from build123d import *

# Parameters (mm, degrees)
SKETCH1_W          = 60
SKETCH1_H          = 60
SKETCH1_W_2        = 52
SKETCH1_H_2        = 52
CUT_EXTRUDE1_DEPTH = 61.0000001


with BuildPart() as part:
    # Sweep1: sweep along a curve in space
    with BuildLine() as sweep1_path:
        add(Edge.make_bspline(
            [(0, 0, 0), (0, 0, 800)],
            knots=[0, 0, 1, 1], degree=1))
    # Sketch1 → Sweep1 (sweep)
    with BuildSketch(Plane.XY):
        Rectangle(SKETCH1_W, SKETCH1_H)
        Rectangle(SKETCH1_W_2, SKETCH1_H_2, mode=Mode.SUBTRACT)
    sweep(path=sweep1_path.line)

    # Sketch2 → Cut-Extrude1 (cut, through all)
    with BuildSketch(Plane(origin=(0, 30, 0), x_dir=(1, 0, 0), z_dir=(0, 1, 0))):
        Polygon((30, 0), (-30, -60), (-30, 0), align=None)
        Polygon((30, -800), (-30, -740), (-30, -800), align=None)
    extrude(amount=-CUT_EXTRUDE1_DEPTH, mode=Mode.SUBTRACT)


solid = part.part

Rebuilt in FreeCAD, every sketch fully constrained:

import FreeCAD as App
import Part
import Sketcher

V = App.Vector
Q = App.Units.Quantity


def add_polygon(sketch, points):
    """Adds a closed chain of lines whose ends are joined by coincident constraints."""
    first, n = sketch.GeometryCount, len(points)
    for a, b in zip(points, points[1:] + points[:1]):
        sketch.addGeometry(Part.LineSegment(App.Vector(*a, 0), App.Vector(*b, 0)), False)
    for i in range(n):
        sketch.addConstraint(Sketcher.Constraint("Coincident", first + i, 2, first + (i + 1) % n, 1))

doc = App.newDocument("Part")
body = doc.addObject("PartDesign::Body", "Body")

sketch1 = body.newObject("Sketcher::SketchObject", "Sketch")
sketch1.AttachmentSupport = (doc.getObject("XY_Plane"), [""])
sketch1.MapMode = "FlatFace"
add_polygon(sketch1, [(-30, 30), (-30, -30), (30, -30), (30, 30)])
add_polygon(sketch1, [(26, -26), (-26, -26), (-26, 26), (26, 26)])
sketch1.addConstraint([
    Sketcher.Constraint("Vertical", 0),
    Sketcher.Constraint("Horizontal", 1),
    Sketcher.Constraint("Vertical", 2),
    Sketcher.Constraint("Horizontal", 3),
    Sketcher.Constraint("Horizontal", 4),
    Sketcher.Constraint("Vertical", 5),
    Sketcher.Constraint("Horizontal", 6),
    Sketcher.Constraint("Vertical", 7),
    Sketcher.Constraint("Symmetric", 0, 2, 2, 2, -1, 1),
    Sketcher.Constraint("Symmetric", 4, 2, 6, 2, -1, 1),
    Sketcher.Constraint("Equal", 3, 0),
    Sketcher.Constraint("Equal", 6, 5),
    Sketcher.Constraint("DistanceX", 1, 1, 1, 2, Q("60 mm")),
    Sketcher.Constraint("DistanceX", 4, 2, 4, 1, Q("52 mm")),
])

sketch2 = body.newObject("Sketcher::SketchObject", "Sketch001")
sketch2.AttachmentSupport = (doc.getObject("XZ_Plane"), [""])
sketch2.MapMode = "FlatFace"
sketch2.addGeometry(Part.BSplineCurve([V(0, 0, 0), V(0, 800, 0)], [2, 2], [0, 1], False, 1, [1, 1], False), False)
sketch2.addConstraint(Sketcher.Constraint("Block", 0))
doc.recompute()

additivepipe = body.newObject("PartDesign::AdditivePipe", "AdditivePipe")
additivepipe.Profile = sketch1
additivepipe.Spine = (sketch2, ["Edge1"])

sketch3 = body.newObject("Sketcher::SketchObject", "Sketch002")
sketch3.AttachmentSupport = (doc.getObject("XZ_Plane"), [""])
sketch3.MapMode = "FlatFace"
sketch3.AttachmentOffset = App.Placement(V(0, 0, -30), App.Rotation())
add_polygon(sketch3, [(-30, 60), (30, 0), (-30, 0)])
add_polygon(sketch3, [(30, 800), (-30, 740), (-30, 800)])
sketch3.addConstraint([
    Sketcher.Constraint("Horizontal", 1),
    Sketcher.Constraint("Vertical", 2),
    Sketcher.Constraint("Vertical", 4),
    Sketcher.Constraint("Horizontal", 5),
    Sketcher.Constraint("Symmetric", 0, 2, 1, 2, -1, 1),
    Sketcher.Constraint("Perpendicular", 0, 3),
    Sketcher.Constraint("Vertical", 2, 2, 3, 2),
    Sketcher.Constraint("Vertical", 0, 2, 5, 2),
    Sketcher.Constraint("Equal", 5, 2),
    Sketcher.Constraint("DistanceX", 1, 2, 1, 1, Q("60 mm")),
    Sketcher.Constraint("DistanceY", -1, 1, 3, 2, Q("740 mm")),
])
pocket1 = body.newObject("PartDesign::Pocket", "Pocket")
pocket1.Profile = sketch3
pocket1.Type = "ThroughAll"
pocket1.Reversed = True

doc.recompute()
